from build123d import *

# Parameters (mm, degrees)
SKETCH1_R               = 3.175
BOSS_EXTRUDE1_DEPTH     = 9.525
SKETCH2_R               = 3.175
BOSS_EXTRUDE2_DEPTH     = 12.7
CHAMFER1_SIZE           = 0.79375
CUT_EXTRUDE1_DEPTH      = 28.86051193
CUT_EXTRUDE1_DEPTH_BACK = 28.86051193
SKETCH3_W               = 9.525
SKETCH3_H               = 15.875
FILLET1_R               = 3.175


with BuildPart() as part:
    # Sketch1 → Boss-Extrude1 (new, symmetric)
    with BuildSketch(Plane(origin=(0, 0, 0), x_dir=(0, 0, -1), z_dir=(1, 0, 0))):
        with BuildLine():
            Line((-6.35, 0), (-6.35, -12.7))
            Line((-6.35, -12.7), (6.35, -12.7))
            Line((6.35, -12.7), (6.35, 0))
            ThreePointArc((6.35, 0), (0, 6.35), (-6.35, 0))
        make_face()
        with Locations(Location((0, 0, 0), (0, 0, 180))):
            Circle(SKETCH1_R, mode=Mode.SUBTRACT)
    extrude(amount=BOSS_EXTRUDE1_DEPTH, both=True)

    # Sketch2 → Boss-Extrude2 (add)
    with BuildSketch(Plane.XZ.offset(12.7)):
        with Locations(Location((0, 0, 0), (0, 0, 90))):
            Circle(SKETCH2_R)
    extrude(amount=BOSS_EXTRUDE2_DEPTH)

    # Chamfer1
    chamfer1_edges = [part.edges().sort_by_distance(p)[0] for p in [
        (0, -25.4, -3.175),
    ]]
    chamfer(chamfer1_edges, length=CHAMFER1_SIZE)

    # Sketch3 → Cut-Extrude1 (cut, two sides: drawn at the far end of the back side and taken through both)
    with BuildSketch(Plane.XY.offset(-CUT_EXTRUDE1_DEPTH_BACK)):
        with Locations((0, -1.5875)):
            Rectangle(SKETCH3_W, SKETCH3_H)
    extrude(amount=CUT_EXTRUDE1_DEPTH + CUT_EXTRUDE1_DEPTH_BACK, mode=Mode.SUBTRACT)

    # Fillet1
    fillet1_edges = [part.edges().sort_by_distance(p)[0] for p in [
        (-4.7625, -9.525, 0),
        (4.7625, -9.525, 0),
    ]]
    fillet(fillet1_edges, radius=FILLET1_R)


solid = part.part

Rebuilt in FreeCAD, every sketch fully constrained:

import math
import FreeCAD as App
import Part
import Sketcher

V = App.Vector
Q = App.Units.Quantity


def edges_at(feature, points):
    """Names of the edges that pass closest to the given points."""
    edges = feature.Shape.Edges
    near = lambda p: min(range(len(edges)), key=lambda i: edges[i].distToShape(Part.Vertex(*p))[0])
    return sorted({f"Edge{near(p) + 1}" for p in points})


def add_polygon(sketch, points):
    """Adds a closed chain of lines whose ends are joined by coincident constraints."""
    first, n = sketch.GeometryCount, len(points)
    for a, b in zip(points, points[1:] + points[:1]):
        sketch.addGeometry(Part.LineSegment(App.Vector(*a, 0), App.Vector(*b, 0)), False)
    for i in range(n):
        sketch.addConstraint(Sketcher.Constraint("Coincident", first + i, 2, first + (i + 1) % n, 1))

doc = App.newDocument("Part")
body = doc.addObject("PartDesign::Body", "Body")

sketch1 = doc.addObject("Sketcher::SketchObject", "Sketch")
body.addObject(sketch1)
sketch1.AttachmentSupport = (doc.YZ_Plane, [""])
sketch1.MapMode = "FlatFace"
sketch1.addGeometry([
    Part.LineSegment(V(0, 6.3, 0), V(-12.7, 6.3, 0)),
    Part.LineSegment(V(-12.7, 6.3, 0), V(-12.7, -6.3, 0)),
    Part.LineSegment(V(-12.7, -6.3, 0), V(0, -6.3, 0)),
    Part.ArcOfCircle(Part.Circle(V(0, 0, 0), V(0, 0, 1), 6.3), math.radians(-90), math.radians(90)),
    Part.Circle(V(0, 0, 0), V(0, 0, 1), 3.2),
], False)
sketch1.addConstraint([
    Sketcher.Constraint("Coincident", 0, 2, 1, 1),
    Sketcher.Constraint("Coincident", 1, 2, 2, 1),
    Sketcher.Constraint("Tangent", 2, 2, 3, 1),
    Sketcher.Constraint("Tangent", 3, 2, 0, 1),
    Sketcher.Constraint("Horizontal", 0),
    Sketcher.Constraint("Vertical", 1),
    Sketcher.Constraint("Horizontal", 2),
    Sketcher.Constraint("Coincident", 3, 3, -1, 1),
    Sketcher.Constraint("Coincident", 4, 3, -1, 1),
    Sketcher.Constraint("Equal", 2, 1),
    Sketcher.Constraint("Diameter", 4, Q("0.25 in")),
    Sketcher.Constraint("Radius", 3, Q("0.25 in")),
])
pad1 = doc.addObject("PartDesign::Pad", "Pad")
body.addObject(pad1)
pad1.Profile = sketch1
pad1.Length = Q("0.75 in")
pad1.Midplane = True

sketch2 = doc.addObject("Sketcher::SketchObject", "Sketch001")
body.addObject(sketch2)
sketch2.AttachmentSupport = (doc.XZ_Plane, [""])
sketch2.MapMode = "FlatFace"
sketch2.AttachmentOffset = App.Placement(V(0, 0, 0.5 * 25.4), App.Rotation())
sketch2.addGeometry(Part.Circle(V(0, 0, 0), V(0, 0, 1), 3.2), False)
sketch2.addConstraint([
    Sketcher.Constraint("Coincident", 0, 3, -1, 1),
    Sketcher.Constraint("Diameter", 0, Q("0.25 in")),
])
pad2 = doc.addObject("PartDesign::Pad", "Pad001")
body.addObject(pad2)
pad2.Profile = sketch2
pad2.Length = Q("0.5 in")
doc.recompute()

chamfer = doc.addObject("PartDesign::Chamfer", "Chamfer")
body.addObject(chamfer)
chamfer.Base = (pad2, edges_at(pad2, [(0, -25.4, -3.175)]))
chamfer.Size = Q("0.03125 in")

sketch3 = doc.addObject("Sketcher::SketchObject", "Sketch002")
body.addObject(sketch3)
sketch3.AttachmentSupport = (doc.XY_Plane, [""])
sketch3.MapMode = "FlatFace"
add_polygon(sketch3, [(-5, 6), (-5, -10), (5, -10), (5, 6)])
sketch3.addConstraint([
    Sketcher.Constraint("Vertical", 0),
    Sketcher.Constraint("Horizontal", 1),
    Sketcher.Constraint("Vertical", 2),
    Sketcher.Constraint("Horizontal", 3),
    Sketcher.Constraint("DistanceX", 1, 1, 1, 2, Q("0.375 in")),
    Sketcher.Constraint("DistanceY", 0, 2, 0, 1, Q("0.625 in")),
    Sketcher.Constraint("DistanceY", -1, 1, 2, 2, Q("0.25 in")),
    Sketcher.Constraint("DistanceX", 0, 2, -1, 1, Q("0.1875 in")),
])
pocket1 = doc.addObject("PartDesign::Pocket", "Pocket")
body.addObject(pocket1)
pocket1.Profile = sketch3
pocket1.Type = "ThroughAll"
pocket1.Midplane = True
doc.recompute()

fillet = doc.addObject("PartDesign::Fillet", "Fillet")
body.addObject(fillet)
fillet.Base = (pocket1, edges_at(pocket1, [(-4.763, -9.525, 0), (4.763, -9.525, 0)]))
fillet.Radius = Q("0.125 in")

doc.recompute()
